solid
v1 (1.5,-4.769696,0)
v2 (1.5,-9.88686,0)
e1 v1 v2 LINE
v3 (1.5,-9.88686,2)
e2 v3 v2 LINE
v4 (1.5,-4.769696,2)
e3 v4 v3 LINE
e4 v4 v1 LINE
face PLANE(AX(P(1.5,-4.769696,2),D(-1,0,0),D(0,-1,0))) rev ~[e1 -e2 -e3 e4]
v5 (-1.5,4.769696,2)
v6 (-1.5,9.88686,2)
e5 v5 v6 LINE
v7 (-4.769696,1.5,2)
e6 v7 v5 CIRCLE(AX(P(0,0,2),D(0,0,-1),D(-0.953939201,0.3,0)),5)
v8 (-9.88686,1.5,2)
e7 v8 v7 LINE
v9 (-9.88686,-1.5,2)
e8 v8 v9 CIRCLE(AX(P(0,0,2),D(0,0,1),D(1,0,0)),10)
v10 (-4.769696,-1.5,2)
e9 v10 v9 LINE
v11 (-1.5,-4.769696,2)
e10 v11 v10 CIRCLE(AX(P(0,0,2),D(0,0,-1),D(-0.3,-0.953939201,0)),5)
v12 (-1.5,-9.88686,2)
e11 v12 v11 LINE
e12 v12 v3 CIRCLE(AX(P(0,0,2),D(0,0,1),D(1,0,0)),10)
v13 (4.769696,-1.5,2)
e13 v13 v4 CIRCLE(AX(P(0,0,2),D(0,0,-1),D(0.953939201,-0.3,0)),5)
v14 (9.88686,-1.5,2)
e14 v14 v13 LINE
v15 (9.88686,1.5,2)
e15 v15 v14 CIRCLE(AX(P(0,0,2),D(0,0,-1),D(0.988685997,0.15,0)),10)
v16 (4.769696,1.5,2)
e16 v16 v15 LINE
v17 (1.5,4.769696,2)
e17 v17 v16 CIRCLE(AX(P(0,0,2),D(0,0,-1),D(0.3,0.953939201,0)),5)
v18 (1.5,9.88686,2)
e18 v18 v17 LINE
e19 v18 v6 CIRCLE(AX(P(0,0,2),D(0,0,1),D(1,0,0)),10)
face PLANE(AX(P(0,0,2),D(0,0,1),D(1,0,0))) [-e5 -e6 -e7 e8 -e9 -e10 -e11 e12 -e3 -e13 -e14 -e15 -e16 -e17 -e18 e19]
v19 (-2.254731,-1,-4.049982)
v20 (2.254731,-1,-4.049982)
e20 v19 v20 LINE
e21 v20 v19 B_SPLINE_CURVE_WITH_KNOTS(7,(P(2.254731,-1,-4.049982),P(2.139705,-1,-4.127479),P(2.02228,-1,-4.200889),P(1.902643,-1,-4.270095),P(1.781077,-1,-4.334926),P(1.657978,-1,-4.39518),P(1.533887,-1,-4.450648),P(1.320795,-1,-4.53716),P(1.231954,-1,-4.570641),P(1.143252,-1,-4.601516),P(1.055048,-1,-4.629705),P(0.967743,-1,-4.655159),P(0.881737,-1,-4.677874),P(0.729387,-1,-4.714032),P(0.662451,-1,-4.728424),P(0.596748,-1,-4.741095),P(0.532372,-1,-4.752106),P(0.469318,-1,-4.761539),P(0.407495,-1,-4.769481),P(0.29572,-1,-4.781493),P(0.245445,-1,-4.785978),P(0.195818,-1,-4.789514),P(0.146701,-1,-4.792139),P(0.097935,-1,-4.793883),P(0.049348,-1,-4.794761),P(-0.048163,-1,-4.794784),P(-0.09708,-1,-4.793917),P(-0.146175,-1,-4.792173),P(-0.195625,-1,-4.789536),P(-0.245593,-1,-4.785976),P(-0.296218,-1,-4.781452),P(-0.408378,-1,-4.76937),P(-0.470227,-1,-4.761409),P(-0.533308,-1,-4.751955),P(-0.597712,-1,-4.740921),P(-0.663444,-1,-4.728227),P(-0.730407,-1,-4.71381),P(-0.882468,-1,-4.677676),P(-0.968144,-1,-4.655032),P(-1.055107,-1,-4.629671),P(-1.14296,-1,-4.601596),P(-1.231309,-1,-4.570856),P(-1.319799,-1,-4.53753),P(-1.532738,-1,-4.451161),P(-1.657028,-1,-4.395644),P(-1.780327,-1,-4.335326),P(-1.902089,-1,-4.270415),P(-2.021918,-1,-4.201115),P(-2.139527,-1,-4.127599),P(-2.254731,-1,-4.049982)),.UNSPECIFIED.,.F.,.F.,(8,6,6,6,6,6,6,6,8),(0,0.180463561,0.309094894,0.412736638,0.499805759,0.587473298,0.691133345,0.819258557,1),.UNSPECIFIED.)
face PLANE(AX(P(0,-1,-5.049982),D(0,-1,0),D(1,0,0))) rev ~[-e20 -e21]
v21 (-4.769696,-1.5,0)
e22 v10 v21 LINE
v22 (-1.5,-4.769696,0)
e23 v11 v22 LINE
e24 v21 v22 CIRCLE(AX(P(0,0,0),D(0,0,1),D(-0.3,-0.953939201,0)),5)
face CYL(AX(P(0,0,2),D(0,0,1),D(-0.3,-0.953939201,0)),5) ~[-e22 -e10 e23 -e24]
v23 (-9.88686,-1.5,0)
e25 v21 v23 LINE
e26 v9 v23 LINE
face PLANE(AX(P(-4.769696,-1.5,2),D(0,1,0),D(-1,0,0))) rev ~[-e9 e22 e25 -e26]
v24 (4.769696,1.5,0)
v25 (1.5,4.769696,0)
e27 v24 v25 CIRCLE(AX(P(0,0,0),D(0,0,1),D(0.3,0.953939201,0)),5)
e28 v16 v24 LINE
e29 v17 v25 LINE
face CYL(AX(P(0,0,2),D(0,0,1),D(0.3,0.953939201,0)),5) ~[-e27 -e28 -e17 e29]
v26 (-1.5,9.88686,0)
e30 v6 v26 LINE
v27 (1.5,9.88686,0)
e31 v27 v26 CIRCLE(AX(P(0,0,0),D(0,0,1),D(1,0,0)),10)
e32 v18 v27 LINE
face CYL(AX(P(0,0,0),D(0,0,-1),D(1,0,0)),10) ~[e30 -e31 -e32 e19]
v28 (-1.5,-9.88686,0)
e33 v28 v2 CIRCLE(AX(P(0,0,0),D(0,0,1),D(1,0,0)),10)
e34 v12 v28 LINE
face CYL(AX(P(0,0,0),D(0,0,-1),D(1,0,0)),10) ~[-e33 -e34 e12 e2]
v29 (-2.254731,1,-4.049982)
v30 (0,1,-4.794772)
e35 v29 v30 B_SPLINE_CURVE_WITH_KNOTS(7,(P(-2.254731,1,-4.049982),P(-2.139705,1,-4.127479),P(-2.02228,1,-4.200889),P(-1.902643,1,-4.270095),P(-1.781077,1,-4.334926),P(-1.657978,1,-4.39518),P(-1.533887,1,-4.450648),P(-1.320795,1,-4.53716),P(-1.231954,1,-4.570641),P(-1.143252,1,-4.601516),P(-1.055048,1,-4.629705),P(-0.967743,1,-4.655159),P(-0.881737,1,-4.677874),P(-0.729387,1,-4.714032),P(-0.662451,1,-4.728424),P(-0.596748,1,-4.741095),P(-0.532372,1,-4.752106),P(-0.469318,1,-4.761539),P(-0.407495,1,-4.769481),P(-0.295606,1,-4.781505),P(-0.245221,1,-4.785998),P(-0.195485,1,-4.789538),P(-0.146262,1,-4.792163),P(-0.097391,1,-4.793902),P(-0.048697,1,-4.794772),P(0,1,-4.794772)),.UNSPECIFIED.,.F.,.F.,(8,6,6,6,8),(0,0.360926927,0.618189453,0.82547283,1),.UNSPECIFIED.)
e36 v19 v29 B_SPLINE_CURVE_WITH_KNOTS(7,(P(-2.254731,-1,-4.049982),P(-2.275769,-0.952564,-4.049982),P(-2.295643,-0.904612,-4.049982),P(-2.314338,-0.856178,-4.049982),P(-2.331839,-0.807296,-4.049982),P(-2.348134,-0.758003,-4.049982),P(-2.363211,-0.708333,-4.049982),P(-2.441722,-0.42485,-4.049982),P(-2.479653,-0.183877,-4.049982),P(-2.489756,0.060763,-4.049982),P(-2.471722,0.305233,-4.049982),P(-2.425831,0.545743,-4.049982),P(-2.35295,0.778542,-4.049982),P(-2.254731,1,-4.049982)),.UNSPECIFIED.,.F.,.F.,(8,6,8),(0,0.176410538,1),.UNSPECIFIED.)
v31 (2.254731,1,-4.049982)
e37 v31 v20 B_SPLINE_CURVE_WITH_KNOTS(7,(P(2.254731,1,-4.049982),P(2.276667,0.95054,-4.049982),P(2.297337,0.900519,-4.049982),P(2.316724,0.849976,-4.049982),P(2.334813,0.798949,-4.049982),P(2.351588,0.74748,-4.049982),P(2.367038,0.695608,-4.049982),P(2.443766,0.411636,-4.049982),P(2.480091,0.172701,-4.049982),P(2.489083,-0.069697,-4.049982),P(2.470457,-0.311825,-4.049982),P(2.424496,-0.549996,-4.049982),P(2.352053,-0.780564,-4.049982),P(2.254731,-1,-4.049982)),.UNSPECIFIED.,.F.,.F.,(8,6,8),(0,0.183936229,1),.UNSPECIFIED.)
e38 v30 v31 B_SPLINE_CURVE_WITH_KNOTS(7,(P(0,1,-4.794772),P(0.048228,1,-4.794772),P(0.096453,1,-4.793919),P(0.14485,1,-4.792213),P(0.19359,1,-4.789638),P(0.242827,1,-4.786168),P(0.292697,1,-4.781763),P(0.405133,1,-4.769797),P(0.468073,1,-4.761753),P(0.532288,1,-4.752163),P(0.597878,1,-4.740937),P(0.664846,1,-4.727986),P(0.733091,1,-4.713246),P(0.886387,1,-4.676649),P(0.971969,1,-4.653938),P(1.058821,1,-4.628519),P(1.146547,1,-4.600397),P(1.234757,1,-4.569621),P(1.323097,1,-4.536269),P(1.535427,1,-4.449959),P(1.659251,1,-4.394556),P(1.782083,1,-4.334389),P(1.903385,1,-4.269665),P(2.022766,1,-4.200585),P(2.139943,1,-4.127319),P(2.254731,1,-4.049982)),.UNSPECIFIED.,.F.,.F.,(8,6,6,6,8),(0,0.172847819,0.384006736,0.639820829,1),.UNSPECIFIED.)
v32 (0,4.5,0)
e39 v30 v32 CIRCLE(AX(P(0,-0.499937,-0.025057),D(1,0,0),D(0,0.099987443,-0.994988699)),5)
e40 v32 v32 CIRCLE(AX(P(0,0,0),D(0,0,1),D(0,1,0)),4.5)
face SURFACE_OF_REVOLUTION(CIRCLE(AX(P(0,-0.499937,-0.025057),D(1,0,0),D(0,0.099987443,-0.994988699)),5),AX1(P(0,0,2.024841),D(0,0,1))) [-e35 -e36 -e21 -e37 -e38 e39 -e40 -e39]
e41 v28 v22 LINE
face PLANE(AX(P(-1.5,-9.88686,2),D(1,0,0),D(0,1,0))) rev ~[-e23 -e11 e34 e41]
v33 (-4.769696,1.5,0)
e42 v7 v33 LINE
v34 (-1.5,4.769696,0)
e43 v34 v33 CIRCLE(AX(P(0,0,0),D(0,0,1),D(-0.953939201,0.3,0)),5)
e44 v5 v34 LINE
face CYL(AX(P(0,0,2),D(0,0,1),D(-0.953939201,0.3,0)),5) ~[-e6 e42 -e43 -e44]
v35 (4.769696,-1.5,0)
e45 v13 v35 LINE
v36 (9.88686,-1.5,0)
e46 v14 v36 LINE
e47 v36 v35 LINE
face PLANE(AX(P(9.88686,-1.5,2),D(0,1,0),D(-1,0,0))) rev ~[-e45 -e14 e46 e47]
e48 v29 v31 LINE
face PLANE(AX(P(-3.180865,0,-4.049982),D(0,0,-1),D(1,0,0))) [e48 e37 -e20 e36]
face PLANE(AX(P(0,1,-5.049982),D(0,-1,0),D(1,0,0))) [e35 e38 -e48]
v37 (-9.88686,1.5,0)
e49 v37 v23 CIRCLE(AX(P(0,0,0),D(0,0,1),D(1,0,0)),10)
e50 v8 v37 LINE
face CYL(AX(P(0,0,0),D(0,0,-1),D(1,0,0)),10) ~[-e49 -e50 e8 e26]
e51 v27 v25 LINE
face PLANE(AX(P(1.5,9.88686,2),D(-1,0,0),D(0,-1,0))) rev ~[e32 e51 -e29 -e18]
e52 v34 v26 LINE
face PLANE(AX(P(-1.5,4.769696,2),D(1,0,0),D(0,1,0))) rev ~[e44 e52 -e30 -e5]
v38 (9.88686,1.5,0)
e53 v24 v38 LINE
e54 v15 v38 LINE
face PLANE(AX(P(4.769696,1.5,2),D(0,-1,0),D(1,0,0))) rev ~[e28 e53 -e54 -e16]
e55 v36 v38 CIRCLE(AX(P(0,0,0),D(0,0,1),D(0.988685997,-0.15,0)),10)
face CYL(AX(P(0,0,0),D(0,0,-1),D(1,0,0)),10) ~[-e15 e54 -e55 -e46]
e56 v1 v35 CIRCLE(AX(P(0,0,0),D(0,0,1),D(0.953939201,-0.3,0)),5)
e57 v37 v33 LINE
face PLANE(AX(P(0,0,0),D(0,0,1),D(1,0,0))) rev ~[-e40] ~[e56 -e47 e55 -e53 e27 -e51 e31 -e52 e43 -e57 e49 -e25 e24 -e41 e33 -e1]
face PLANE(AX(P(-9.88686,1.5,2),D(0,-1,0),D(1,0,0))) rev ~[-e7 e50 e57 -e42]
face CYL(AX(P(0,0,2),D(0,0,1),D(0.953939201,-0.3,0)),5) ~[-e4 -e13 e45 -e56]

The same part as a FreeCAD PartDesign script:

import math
import FreeCAD as App
import Part
import Sketcher
from FreeCAD import Vector

doc = App.newDocument("Part")
body = doc.addObject("PartDesign::Body", "Body")

sketch1 = body.newObject("Sketcher::SketchObject", "Sketch")
sketch1.AttachmentSupport = (doc.getObject("XY_Plane"), [""])
sketch1.MapMode = "FlatFace"
sketch1.addGeometry(Part.Circle(Vector(0, 0, 0), Vector(0, 0, 1), 10), False)
sketch1.addConstraint([
    Sketcher.Constraint("Coincident", 0, 3, -1, 1),
    Sketcher.Constraint("Diameter", 0, 20.0),
])
pad1 = body.newObject("PartDesign::Pad", "Pad")
pad1.Profile = sketch1
pad1.Length = 2

sketch2 = body.newObject("Sketcher::SketchObject", "Sketch001")
sketch2.AttachmentSupport = (doc.getObject("XY_Plane"), [""])
sketch2.MapMode = "FlatFace"
sketch2.AttachmentOffset = App.Placement(Vector(0, 0, 2), App.Rotation())
sketch2.addGeometry([
    Part.ArcOfCircle(Part.Circle(Vector(0, 0, 0), Vector(0, 0, 1), 5), math.radians(107), math.radians(163)),
    Part.LineSegment(Vector(-1.5, 4.8, 0), Vector(-1.5, 9.9, 0)),
    Part.ArcOfCircle(Part.Circle(Vector(0, 0, 0), Vector(0, 0, 1), 10), math.radians(99), math.radians(171)),
    Part.LineSegment(Vector(-9.9, 1.5, 0), Vector(-4.8, 1.5, 0)),
    Part.ArcOfCircle(Part.Circle(Vector(0, 0, 0), Vector(0, 0, 1), 5), math.radians(17), math.radians(73)),
    Part.LineSegment(Vector(4.8, 1.5, 0), Vector(9.9, 1.5, 0)),
    Part.ArcOfCircle(Part.Circle(Vector(0, 0, 0), Vector(0, 0, 1), 10), math.radians(9), math.radians(81)),
    Part.LineSegment(Vector(1.5, 9.9, 0), Vector(1.5, 4.8, 0)),
    Part.LineSegment(Vector(9.9, -1.5, 0), Vector(4.8, -1.5, 0)),
    Part.ArcOfCircle(Part.Circle(Vector(0, 0, 0), Vector(0, 0, 1), 5), math.radians(-73), math.radians(-17)),
    Part.LineSegment(Vector(1.5, -4.8, 0), Vector(1.5, -9.9, 0)),
    Part.ArcOfCircle(Part.Circle(Vector(0, 0, 0), Vector(0, 0, 1), 10), math.radians(-81), math.radians(-9)),
    Part.LineSegment(Vector(-1.5, -9.9, 0), Vector(-1.5, -4.8, 0)),
    Part.ArcOfCircle(Part.Circle(Vector(0, 0, 0), Vector(0, 0, 1), 5), math.radians(-163), math.radians(-107)),
    Part.LineSegment(Vector(-4.8, -1.5, 0), Vector(-9.9, -1.5, 0)),
    Part.ArcOfCircle(Part.Circle(Vector(0, 0, 0), Vector(0, 0, 1), 10), math.radians(-171), math.radians(-99)),
], False)
sketch2.addConstraint([
    Sketcher.Constraint("Coincident", 0, 1, 1, 1),
    Sketcher.Constraint("Coincident", 1, 2, 2, 1),
    Sketcher.Constraint("Coincident", 2, 2, 3, 1),
    Sketcher.Constraint("Coincident", 3, 2, 0, 2),
    Sketcher.Constraint("Coincident", 4, 1, 5, 1),
    Sketcher.Constraint("Coincident", 5, 2, 6, 1),
    Sketcher.Constraint("Coincident", 6, 2, 7, 1),
    Sketcher.Constraint("Coincident", 7, 2, 4, 2),
    Sketcher.Constraint("Coincident", 8, 2, 9, 2),
    Sketcher.Constraint("Coincident", 9, 1, 10, 1),
    Sketcher.Constraint("Coincident", 10, 2, 11, 1),
    Sketcher.Constraint("Coincident", 11, 2, 8, 1),
    Sketcher.Constraint("Coincident", 12, 2, 13, 2),
    Sketcher.Constraint("Coincident", 13, 1, 14, 1),
    Sketcher.Constraint("Coincident", 14, 2, 15, 1),
    Sketcher.Constraint("Coincident", 15, 2, 12, 1),
    Sketcher.Constraint("Vertical", 1),
    Sketcher.Constraint("Horizontal", 3),
    Sketcher.Constraint("Horizontal", 5),
    Sketcher.Constraint("Vertical", 7),
    Sketcher.Constraint("Horizontal", 8),
    Sketcher.Constraint("Vertical", 10),
    Sketcher.Constraint("Vertical", 12),
    Sketcher.Constraint("Horizontal", 14),
    Sketcher.Constraint("Coincident", 0, 3, -1, 1),
    Sketcher.Constraint("Coincident", 2, 3, -1, 1),
    Sketcher.Constraint("Coincident", 4, 3, -1, 1),
    Sketcher.Constraint("Coincident", 6, 3, -1, 1),
    Sketcher.Constraint("Coincident", 9, 3, -1, 1),
    Sketcher.Constraint("Coincident", 11, 3, -1, 1),
    Sketcher.Constraint("Coincident", 13, 3, -1, 1),
    Sketcher.Constraint("Coincident", 15, 3, -1, 1),
    Sketcher.Constraint("Equal", 0, 4),
    Sketcher.Constraint("Equal", 2, 6),
    Sketcher.Constraint("Equal", 4, 9),
    Sketcher.Constraint("Equal", 6, 11),
    Sketcher.Constraint("Equal", 9, 13),
    Sketcher.Constraint("Equal", 11, 15),
    Sketcher.Constraint("Horizontal", 3, 2, 4, 1),
    Sketcher.Constraint("Horizontal", 1, 2, 6, 2),
    Sketcher.Constraint("Horizontal", 9, 1, 12, 2),
    Sketcher.Constraint("Horizontal", 11, 2, 13, 1),
    Sketcher.Constraint("Vertical", 4, 1, 8, 2),
    Sketcher.Constraint("Vertical", 7, 2, 9, 1),
    Sketcher.Constraint("Equal", 14, 1),
    Sketcher.Constraint("Radius", 0, 5.0),
    Sketcher.Constraint("Radius", 2, 10.0),
    Sketcher.Constraint("DistanceX", 1, 2, 6, 2, 3.0),
])
pocket1 = body.newObject("PartDesign::Pocket", "Pocket")
pocket1.Profile = sketch2
pocket1.Type = "ThroughAll"

sketch3 = body.newObject("Sketcher::SketchObject", "Sketch002")
sketch3.AttachmentSupport = (doc.getObject("YZ_Plane"), [""])
sketch3.MapMode = "FlatFace"
sketch3.addGeometry([
    Part.LineSegment(Vector(4.5, 0, 0), Vector(0, 0, 0)),
    Part.LineSegment(Vector(0, 0, 0), Vector(0, -5, 0)),
    Part.ArcOfCircle(Part.Circle(Vector(-0.5, 0, 0), Vector(0, 0, 1), 5), math.radians(-84), math.radians(0)),
], False)
sketch3.addConstraint([
    Sketcher.Constraint("Coincident", 0, 2, 1, 1),
    Sketcher.Constraint("Coincident", 1, 2, 2, 1),
    Sketcher.Constraint("Coincident", 2, 2, 0, 1),
    Sketcher.Constraint("Horizontal", 0),
    Sketcher.Constraint("Vertical", 1),
    Sketcher.Constraint("Coincident", 0, 2, -1, 1),
    Sketcher.Constraint("Radius", 2, 5.0),
    Sketcher.Constraint("DistanceY", 1, 2, 1, 1, 5.0),
    Sketcher.Constraint("DistanceX", 0, 2, 0, 1, 4.5),
])
revolution = body.newObject("PartDesign::Revolution", "Revolution")
revolution.Profile = sketch3
revolution.ReferenceAxis = (sketch3, ["V_Axis"])
revolution.Angle = 360

sketch4 = body.newObject("Sketcher::SketchObject", "Sketch003")
sketch4.AttachmentSupport = (doc.getObject("XZ_Plane"), [""])
sketch4.MapMode = "FlatFace"
sketch4.addGeometry([
    Part.LineSegment(Vector(-3.2, -4, 0), Vector(-3.2, -6, 0)),
    Part.LineSegment(Vector(-3.2, -6, 0), Vector(3.2, -6, 0)),
    Part.LineSegment(Vector(3.2, -6, 0), Vector(3.2, -4, 0)),
    Part.LineSegment(Vector(3.2, -4, 0), Vector(-3.2, -4, 0)),
], False)
sketch4.addConstraint([
    Sketcher.Constraint("Coincident", 0, 2, 1, 1),
    Sketcher.Constraint("Coincident", 1, 2, 2, 1),
    Sketcher.Constraint("Coincident", 2, 2, 3, 1),
    Sketcher.Constraint("Coincident", 3, 2, 0, 1),
    Sketcher.Constraint("Vertical", 0),
    Sketcher.Constraint("Horizontal", 1),
    Sketcher.Constraint("Vertical", 2),
    Sketcher.Constraint("Horizontal", 3),
    Sketcher.Constraint("DistanceY", 0, 2, 0, 1, 2.0),
    Sketcher.Constraint("DistanceX", 1, 1, 1, 2, 6.36173),
    Sketcher.Constraint("DistanceY", 0, 2, -1, 1, 6.049982),
    Sketcher.Constraint("DistanceX", 0, 2, -1, 1, 3.180865),
])
pocket2 = body.newObject("PartDesign::Pocket", "Pocket001")
pocket2.Profile = sketch4
pocket2.Length = 2
pocket2.Midplane = True

doc.recompute()
